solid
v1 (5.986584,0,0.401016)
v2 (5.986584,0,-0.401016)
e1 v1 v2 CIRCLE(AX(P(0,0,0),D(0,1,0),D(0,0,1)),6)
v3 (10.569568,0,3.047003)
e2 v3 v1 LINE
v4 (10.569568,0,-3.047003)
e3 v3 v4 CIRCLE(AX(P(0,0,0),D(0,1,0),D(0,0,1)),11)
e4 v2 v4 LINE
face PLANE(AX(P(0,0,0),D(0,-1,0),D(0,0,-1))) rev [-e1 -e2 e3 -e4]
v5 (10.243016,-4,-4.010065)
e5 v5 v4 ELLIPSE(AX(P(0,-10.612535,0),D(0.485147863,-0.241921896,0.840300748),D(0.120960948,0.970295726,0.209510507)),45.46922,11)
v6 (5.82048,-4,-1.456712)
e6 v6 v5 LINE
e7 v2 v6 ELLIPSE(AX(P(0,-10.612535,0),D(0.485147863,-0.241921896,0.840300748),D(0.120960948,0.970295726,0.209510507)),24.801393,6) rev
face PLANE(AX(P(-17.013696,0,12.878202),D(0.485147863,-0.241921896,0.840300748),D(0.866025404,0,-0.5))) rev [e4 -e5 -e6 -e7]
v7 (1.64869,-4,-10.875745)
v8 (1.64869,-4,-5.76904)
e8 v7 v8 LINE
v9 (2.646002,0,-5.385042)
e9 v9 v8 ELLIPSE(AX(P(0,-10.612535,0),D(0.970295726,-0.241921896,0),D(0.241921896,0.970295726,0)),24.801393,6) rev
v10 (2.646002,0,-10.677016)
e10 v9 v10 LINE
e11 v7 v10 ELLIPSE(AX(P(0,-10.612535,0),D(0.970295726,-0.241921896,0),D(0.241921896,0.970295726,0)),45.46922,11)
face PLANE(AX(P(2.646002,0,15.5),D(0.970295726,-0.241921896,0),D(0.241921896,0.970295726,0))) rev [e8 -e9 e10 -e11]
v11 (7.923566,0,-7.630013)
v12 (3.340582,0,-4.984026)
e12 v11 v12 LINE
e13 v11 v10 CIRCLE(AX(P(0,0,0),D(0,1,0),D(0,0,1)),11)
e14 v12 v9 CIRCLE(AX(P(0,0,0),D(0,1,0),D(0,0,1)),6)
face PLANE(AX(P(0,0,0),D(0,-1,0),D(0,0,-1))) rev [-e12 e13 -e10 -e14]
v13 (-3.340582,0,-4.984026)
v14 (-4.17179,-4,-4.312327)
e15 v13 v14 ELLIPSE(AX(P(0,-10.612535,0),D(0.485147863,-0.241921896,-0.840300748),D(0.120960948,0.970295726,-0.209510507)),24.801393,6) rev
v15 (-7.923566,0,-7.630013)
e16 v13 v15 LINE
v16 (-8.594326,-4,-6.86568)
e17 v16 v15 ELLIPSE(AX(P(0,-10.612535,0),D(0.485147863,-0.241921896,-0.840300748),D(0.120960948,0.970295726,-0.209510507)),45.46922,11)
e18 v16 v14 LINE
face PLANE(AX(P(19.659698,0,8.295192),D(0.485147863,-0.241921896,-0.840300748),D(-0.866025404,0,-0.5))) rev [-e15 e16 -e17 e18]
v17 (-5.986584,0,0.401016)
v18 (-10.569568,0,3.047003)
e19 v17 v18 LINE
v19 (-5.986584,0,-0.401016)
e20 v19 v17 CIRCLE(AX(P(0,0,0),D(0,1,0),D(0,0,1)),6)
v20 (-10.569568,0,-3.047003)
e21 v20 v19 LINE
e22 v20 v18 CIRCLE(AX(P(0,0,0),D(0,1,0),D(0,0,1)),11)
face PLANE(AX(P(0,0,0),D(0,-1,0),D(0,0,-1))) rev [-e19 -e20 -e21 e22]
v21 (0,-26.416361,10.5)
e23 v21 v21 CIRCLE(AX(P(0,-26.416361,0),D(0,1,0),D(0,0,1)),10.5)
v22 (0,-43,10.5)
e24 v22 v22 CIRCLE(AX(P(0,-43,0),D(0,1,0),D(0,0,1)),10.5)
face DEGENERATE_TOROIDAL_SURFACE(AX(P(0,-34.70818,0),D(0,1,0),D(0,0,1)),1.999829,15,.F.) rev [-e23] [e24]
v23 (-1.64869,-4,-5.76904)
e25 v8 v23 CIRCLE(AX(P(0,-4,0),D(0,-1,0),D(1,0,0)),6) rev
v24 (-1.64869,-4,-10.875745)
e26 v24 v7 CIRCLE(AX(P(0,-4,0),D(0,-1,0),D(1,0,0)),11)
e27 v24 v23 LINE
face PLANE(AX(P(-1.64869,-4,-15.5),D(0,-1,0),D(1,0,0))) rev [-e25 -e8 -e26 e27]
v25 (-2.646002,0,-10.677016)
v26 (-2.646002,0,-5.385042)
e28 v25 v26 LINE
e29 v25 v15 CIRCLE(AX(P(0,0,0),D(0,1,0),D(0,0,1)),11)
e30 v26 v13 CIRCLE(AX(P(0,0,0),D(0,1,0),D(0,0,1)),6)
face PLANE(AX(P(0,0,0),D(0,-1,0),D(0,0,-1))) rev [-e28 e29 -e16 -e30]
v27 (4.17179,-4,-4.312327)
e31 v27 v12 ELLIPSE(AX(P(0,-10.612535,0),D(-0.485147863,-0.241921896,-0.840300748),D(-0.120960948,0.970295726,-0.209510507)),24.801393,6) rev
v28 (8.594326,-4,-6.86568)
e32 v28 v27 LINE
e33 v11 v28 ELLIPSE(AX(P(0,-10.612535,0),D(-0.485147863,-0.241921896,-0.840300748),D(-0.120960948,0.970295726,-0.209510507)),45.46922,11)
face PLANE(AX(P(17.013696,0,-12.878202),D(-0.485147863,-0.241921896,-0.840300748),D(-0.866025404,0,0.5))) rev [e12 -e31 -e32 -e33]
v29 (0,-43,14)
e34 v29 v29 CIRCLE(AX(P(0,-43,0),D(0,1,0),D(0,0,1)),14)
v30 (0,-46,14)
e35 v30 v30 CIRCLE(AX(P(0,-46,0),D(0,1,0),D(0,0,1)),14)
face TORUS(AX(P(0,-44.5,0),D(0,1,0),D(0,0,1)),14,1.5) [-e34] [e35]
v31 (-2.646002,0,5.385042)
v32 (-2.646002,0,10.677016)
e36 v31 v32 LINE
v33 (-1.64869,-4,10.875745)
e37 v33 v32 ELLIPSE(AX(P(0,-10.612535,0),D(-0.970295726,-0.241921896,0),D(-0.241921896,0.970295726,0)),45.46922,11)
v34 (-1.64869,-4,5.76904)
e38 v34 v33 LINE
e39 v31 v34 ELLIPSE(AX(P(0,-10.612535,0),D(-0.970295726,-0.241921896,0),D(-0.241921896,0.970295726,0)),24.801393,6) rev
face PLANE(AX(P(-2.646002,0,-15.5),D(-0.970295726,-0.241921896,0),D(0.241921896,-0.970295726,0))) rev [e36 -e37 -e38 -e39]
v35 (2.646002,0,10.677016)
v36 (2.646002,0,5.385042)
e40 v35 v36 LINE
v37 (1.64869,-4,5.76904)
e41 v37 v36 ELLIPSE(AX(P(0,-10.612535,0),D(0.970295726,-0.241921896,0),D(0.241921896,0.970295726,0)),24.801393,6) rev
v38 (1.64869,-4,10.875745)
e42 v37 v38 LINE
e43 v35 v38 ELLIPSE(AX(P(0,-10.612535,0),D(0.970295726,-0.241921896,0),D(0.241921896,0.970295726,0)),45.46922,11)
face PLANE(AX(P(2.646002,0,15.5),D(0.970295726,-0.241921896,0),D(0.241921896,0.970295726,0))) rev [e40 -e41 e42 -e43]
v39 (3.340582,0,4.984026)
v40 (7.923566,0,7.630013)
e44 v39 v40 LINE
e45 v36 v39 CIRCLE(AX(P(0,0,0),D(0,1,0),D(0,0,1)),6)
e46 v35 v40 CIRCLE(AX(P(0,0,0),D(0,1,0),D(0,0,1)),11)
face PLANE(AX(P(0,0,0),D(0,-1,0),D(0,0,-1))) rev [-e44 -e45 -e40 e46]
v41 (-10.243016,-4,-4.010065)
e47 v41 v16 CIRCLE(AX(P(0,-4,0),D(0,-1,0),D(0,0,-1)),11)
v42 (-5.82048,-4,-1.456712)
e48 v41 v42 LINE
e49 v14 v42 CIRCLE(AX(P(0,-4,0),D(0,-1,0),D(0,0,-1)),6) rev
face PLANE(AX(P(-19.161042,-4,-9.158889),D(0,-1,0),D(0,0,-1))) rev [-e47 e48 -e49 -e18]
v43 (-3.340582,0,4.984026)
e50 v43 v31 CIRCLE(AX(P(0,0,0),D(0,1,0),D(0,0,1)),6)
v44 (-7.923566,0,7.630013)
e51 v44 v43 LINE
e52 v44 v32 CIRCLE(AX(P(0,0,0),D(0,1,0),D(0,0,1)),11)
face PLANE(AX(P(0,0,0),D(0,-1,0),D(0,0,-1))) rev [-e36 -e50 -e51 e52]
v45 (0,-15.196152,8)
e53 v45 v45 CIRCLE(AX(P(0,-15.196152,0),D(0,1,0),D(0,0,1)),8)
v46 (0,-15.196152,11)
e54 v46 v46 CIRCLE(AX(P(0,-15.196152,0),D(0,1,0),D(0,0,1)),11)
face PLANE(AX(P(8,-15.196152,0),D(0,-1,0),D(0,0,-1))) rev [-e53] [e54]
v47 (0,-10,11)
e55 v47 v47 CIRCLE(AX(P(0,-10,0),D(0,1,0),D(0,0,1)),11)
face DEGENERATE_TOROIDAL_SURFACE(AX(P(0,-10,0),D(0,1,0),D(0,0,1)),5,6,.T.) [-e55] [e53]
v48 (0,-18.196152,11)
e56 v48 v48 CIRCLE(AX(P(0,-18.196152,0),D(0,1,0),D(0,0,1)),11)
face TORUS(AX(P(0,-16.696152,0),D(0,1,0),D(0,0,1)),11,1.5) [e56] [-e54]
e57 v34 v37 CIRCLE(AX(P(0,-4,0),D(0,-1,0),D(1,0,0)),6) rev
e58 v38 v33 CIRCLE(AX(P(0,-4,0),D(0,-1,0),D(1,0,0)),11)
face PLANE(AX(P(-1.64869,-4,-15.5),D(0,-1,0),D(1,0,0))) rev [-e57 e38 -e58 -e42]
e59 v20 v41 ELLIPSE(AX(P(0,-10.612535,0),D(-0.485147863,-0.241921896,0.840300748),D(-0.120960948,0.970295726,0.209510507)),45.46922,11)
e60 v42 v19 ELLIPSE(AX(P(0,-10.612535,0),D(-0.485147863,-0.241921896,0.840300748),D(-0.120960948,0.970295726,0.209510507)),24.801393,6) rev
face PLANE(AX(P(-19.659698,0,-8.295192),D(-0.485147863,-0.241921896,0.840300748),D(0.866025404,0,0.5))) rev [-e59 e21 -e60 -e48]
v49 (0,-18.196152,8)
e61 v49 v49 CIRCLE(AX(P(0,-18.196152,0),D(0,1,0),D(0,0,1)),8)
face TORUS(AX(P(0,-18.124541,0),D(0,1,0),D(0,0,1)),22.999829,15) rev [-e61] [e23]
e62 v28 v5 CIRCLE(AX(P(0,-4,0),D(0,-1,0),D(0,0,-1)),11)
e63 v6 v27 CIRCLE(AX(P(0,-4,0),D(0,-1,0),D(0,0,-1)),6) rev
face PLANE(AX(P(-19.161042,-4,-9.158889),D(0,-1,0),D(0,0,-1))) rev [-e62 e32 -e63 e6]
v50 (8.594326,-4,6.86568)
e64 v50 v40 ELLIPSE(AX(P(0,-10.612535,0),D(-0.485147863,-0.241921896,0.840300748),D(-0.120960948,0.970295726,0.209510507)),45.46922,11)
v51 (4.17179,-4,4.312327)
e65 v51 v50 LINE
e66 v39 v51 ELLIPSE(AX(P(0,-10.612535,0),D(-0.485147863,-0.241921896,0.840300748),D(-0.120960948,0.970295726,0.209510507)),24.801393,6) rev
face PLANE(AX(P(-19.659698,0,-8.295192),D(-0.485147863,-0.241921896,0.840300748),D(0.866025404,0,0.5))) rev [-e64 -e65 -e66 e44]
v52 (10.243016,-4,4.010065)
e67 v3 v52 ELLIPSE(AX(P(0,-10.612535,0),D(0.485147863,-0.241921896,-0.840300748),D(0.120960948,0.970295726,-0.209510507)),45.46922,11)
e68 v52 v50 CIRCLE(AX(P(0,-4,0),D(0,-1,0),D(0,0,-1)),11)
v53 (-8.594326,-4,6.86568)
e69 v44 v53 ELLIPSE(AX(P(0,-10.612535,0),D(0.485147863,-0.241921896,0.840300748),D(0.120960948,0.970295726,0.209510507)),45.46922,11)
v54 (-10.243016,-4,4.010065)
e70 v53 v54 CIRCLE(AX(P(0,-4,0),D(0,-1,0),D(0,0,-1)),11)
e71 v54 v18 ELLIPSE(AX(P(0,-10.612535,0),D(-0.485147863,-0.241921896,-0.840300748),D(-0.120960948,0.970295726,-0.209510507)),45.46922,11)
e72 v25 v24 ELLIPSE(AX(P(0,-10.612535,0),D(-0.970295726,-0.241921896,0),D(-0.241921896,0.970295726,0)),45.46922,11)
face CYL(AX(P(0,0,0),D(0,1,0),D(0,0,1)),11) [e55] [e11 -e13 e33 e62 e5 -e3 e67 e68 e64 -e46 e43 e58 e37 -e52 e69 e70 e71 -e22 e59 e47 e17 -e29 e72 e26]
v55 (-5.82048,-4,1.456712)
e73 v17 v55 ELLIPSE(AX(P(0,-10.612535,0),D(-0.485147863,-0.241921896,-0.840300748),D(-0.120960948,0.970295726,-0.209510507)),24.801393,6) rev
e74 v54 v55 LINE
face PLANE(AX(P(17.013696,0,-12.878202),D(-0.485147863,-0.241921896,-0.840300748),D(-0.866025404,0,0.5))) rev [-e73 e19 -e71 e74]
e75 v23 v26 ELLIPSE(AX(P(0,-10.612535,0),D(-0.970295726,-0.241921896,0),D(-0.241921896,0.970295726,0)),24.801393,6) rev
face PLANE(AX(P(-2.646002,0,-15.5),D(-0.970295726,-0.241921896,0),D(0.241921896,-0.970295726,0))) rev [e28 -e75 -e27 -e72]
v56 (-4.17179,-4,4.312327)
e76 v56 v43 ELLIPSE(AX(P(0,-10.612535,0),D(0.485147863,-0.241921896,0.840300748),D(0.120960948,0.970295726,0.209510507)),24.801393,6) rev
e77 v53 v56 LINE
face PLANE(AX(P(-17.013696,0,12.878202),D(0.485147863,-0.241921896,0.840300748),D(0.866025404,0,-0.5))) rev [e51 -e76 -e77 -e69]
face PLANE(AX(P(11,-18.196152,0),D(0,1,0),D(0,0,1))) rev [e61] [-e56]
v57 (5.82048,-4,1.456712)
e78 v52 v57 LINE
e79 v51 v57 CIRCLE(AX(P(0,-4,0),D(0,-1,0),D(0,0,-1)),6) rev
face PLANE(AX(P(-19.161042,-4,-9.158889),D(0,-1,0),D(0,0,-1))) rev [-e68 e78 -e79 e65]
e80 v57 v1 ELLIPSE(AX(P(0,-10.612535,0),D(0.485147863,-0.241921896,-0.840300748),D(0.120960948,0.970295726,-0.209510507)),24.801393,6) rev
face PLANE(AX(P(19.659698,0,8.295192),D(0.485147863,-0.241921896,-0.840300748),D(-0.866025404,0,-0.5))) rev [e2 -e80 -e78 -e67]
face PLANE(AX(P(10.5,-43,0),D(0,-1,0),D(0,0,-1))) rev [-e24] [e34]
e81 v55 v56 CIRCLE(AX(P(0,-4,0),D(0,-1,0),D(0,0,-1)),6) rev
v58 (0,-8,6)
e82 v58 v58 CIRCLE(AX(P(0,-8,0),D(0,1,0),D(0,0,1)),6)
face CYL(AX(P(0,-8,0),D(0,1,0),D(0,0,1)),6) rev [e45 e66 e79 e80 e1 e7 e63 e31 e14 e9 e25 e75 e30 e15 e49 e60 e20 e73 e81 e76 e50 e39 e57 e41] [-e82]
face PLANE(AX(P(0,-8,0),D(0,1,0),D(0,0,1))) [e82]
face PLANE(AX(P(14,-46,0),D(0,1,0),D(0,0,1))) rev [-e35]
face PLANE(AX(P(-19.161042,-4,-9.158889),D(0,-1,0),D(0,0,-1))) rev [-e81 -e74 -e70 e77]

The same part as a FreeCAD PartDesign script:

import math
import FreeCAD as App
import Part
import Sketcher

V = App.Vector
Q = App.Units.Quantity

doc = App.newDocument("Part")
body = doc.addObject("PartDesign::Body", "Body")

sketch1 = body.newObject("Sketcher::SketchObject", "Sketch")
sketch1.AttachmentSupport = (doc.getObject("XY_Plane"), [""])
sketch1.MapMode = "FlatFace"
sketch1.addGeometry([
    Part.LineSegment(V(11, 0, 0), V(0, 0, 0)),
    Part.LineSegment(V(0, 0, 0), V(0, -46, 0)),
    Part.LineSegment(V(0, -46, 0), V(14, -46, 0)),
    Part.ArcOfCircle(Part.Circle(V(14, -44.5, 0), V(0, 0, 1), 1.5), math.radians(-90), math.radians(90)),
    Part.LineSegment(V(14, -43, 0), V(10.5, -43, 0)),
    Part.ArcOfCircle(Part.Circle(V(-2, -34.7, 0), V(0, 0, 1), 15), math.radians(-34), math.radians(34)),
    Part.ArcOfCircle(Part.Circle(V(23, -18.1, 0), V(0, 0, 1), 15), math.radians(-180), math.radians(-146)),
    Part.LineSegment(V(8, -18.2, 0), V(11, -18.2, 0)),
    Part.ArcOfCircle(Part.Circle(V(11, -16.7, 0), V(0, 0, 1), 1.5), math.radians(-90), math.radians(90)),
    Part.LineSegment(V(11, -15.2, 0), V(8, -15.2, 0)),
    Part.ArcOfCircle(Part.Circle(V(5, -10, 0), V(0, 0, 1), 6), math.radians(-60), math.radians(0)),
    Part.LineSegment(V(11, -10, 0), V(11, 0, 0)),
], False)
sketch1.addConstraint([
    Sketcher.Constraint("Coincident", 0, 2, 1, 1),
    Sketcher.Constraint("Coincident", 1, 2, 2, 1),
    Sketcher.Constraint("Tangent", 2, 2, 3, 1),
    Sketcher.Constraint("Tangent", 3, 2, 4, 1),
    Sketcher.Constraint("Coincident", 4, 2, 5, 1),
    Sketcher.Constraint("Tangent", 5, 2, 6, 2),
    Sketcher.Constraint("Coincident", 6, 1, 7, 1),
    Sketcher.Constraint("Tangent", 7, 2, 8, 1),
    Sketcher.Constraint("Tangent", 8, 2, 9, 1),
    Sketcher.Constraint("Coincident", 9, 2, 10, 1),
    Sketcher.Constraint("Tangent", 10, 2, 11, 1),
    Sketcher.Constraint("Coincident", 11, 2, 0, 1),
    Sketcher.Constraint("Horizontal", 0),
    Sketcher.Constraint("Vertical", 1),
    Sketcher.Constraint("Horizontal", 2),
    Sketcher.Constraint("Horizontal", 4),
    Sketcher.Constraint("Horizontal", 7),
    Sketcher.Constraint("Horizontal", 9),
    Sketcher.Constraint("Vertical", 11),
    Sketcher.Constraint("Coincident", 0, 2, -1, 1),
    Sketcher.Constraint("Equal", 5, 6),
    Sketcher.Constraint("Equal", 3, 8),
    Sketcher.Constraint("Vertical", 4, 2, 5, 2),
    Sketcher.Constraint("Vertical", 6, 1, 9, 2),
    Sketcher.Constraint("Vertical", 8, 2, 10, 2),
    Sketcher.Constraint("Radius", 5, 15.0),
    Sketcher.Constraint("Radius", 10, 6.0),
    Sketcher.Constraint("Radius", 3, 1.5),
    Sketcher.Constraint("DistanceX", 0, 2, 0, 1, 11.0),
    Sketcher.Constraint("DistanceX", 2, 1, 2, 2, 14.0),
    Sketcher.Constraint("DistanceX", 7, 1, 7, 2, 3.0),
    Sketcher.Constraint("DistanceY", 1, 2, 1, 1, 46.0),
    Sketcher.Constraint("DistanceY", 11, 1, 11, 2, 10.0),
    Sketcher.Constraint("DistanceX", 4, 2, 4, 1, 3.5),
])
revolution = body.newObject("PartDesign::Revolution", "Revolution")
revolution.Profile = sketch1
revolution.ReferenceAxis = (sketch1, ["V_Axis"])
revolution.Angle = 360

sketch2 = body.newObject("Sketcher::SketchObject", "Sketch001")
sketch2.AttachmentSupport = (doc.getObject("XZ_Plane"), [""])
sketch2.MapMode = "FlatFace"
sketch2.addGeometry(Part.Circle(V(0, 0, 0), V(0, 0, 1), 6), False)
sketch2.addConstraint([
    Sketcher.Constraint("Coincident", 0, 3, -1, 1),
    Sketcher.Constraint("Diameter", 0, 12.0),
])
pocket1 = body.newObject("PartDesign::Pocket", "Pocket")
pocket1.Profile = sketch2
pocket1.Length = 8
pocket1.Reversed = True

sketch3 = body.newObject("Sketcher::SketchObject", "Sketch002")
sketch3.AttachmentSupport = (doc.getObject("XY_Plane"), [""])
sketch3.MapMode = "FlatFace"
sketch3.addGeometry([
    Part.LineSegment(V(-2.6, 0, 0), V(-1.6, -4, 0)),
    Part.LineSegment(V(-1.6, -4, 0), V(1.6, -4, 0)),
    Part.LineSegment(V(1.6, -4, 0), V(2.4, 0, 0)),
    Part.LineSegment(V(2.4, 0, 0), V(-2.6, 0, 0)),
], False)
sketch3.addConstraint([
    Sketcher.Constraint("Coincident", 0, 2, 1, 1),
    Sketcher.Constraint("Coincident", 1, 2, 2, 1),
    Sketcher.Constraint("Coincident", 2, 2, 3, 1),
    Sketcher.Constraint("Coincident", 3, 2, 0, 1),
    Sketcher.Constraint("Horizontal", 1),
    Sketcher.Constraint("Horizontal", 3),
    Sketcher.Constraint("PointOnObject", 2, 2, -1),
    Sketcher.Constraint("DistanceX", 3, 2, 3, 1, 5.0),
    Sketcher.Constraint("Angle", 0, Q("-76 deg")),
    Sketcher.Constraint("Angle", 2, Q("80 deg")),
    Sketcher.Constraint("DistanceY", 0, 2, -1, 1, 4.0),
    Sketcher.Constraint("DistanceX", 0, 2, -1, 1, 1.64869),
])
pocket2 = body.newObject("PartDesign::Pocket", "Pocket001")
pocket2.Profile = sketch3
pocket2.Length = 103.911727
pocket2.Midplane = True
doc.recompute()

polarpattern = body.newObject("PartDesign::PolarPattern", "PolarPattern")
polarpattern.Originals = [pocket2]
polarpattern.Axis = (doc.getObject("Y_Axis"), [""])
polarpattern.Angle = 360
polarpattern.Occurrences = 6
body.Tip = polarpattern

doc.recompute()
